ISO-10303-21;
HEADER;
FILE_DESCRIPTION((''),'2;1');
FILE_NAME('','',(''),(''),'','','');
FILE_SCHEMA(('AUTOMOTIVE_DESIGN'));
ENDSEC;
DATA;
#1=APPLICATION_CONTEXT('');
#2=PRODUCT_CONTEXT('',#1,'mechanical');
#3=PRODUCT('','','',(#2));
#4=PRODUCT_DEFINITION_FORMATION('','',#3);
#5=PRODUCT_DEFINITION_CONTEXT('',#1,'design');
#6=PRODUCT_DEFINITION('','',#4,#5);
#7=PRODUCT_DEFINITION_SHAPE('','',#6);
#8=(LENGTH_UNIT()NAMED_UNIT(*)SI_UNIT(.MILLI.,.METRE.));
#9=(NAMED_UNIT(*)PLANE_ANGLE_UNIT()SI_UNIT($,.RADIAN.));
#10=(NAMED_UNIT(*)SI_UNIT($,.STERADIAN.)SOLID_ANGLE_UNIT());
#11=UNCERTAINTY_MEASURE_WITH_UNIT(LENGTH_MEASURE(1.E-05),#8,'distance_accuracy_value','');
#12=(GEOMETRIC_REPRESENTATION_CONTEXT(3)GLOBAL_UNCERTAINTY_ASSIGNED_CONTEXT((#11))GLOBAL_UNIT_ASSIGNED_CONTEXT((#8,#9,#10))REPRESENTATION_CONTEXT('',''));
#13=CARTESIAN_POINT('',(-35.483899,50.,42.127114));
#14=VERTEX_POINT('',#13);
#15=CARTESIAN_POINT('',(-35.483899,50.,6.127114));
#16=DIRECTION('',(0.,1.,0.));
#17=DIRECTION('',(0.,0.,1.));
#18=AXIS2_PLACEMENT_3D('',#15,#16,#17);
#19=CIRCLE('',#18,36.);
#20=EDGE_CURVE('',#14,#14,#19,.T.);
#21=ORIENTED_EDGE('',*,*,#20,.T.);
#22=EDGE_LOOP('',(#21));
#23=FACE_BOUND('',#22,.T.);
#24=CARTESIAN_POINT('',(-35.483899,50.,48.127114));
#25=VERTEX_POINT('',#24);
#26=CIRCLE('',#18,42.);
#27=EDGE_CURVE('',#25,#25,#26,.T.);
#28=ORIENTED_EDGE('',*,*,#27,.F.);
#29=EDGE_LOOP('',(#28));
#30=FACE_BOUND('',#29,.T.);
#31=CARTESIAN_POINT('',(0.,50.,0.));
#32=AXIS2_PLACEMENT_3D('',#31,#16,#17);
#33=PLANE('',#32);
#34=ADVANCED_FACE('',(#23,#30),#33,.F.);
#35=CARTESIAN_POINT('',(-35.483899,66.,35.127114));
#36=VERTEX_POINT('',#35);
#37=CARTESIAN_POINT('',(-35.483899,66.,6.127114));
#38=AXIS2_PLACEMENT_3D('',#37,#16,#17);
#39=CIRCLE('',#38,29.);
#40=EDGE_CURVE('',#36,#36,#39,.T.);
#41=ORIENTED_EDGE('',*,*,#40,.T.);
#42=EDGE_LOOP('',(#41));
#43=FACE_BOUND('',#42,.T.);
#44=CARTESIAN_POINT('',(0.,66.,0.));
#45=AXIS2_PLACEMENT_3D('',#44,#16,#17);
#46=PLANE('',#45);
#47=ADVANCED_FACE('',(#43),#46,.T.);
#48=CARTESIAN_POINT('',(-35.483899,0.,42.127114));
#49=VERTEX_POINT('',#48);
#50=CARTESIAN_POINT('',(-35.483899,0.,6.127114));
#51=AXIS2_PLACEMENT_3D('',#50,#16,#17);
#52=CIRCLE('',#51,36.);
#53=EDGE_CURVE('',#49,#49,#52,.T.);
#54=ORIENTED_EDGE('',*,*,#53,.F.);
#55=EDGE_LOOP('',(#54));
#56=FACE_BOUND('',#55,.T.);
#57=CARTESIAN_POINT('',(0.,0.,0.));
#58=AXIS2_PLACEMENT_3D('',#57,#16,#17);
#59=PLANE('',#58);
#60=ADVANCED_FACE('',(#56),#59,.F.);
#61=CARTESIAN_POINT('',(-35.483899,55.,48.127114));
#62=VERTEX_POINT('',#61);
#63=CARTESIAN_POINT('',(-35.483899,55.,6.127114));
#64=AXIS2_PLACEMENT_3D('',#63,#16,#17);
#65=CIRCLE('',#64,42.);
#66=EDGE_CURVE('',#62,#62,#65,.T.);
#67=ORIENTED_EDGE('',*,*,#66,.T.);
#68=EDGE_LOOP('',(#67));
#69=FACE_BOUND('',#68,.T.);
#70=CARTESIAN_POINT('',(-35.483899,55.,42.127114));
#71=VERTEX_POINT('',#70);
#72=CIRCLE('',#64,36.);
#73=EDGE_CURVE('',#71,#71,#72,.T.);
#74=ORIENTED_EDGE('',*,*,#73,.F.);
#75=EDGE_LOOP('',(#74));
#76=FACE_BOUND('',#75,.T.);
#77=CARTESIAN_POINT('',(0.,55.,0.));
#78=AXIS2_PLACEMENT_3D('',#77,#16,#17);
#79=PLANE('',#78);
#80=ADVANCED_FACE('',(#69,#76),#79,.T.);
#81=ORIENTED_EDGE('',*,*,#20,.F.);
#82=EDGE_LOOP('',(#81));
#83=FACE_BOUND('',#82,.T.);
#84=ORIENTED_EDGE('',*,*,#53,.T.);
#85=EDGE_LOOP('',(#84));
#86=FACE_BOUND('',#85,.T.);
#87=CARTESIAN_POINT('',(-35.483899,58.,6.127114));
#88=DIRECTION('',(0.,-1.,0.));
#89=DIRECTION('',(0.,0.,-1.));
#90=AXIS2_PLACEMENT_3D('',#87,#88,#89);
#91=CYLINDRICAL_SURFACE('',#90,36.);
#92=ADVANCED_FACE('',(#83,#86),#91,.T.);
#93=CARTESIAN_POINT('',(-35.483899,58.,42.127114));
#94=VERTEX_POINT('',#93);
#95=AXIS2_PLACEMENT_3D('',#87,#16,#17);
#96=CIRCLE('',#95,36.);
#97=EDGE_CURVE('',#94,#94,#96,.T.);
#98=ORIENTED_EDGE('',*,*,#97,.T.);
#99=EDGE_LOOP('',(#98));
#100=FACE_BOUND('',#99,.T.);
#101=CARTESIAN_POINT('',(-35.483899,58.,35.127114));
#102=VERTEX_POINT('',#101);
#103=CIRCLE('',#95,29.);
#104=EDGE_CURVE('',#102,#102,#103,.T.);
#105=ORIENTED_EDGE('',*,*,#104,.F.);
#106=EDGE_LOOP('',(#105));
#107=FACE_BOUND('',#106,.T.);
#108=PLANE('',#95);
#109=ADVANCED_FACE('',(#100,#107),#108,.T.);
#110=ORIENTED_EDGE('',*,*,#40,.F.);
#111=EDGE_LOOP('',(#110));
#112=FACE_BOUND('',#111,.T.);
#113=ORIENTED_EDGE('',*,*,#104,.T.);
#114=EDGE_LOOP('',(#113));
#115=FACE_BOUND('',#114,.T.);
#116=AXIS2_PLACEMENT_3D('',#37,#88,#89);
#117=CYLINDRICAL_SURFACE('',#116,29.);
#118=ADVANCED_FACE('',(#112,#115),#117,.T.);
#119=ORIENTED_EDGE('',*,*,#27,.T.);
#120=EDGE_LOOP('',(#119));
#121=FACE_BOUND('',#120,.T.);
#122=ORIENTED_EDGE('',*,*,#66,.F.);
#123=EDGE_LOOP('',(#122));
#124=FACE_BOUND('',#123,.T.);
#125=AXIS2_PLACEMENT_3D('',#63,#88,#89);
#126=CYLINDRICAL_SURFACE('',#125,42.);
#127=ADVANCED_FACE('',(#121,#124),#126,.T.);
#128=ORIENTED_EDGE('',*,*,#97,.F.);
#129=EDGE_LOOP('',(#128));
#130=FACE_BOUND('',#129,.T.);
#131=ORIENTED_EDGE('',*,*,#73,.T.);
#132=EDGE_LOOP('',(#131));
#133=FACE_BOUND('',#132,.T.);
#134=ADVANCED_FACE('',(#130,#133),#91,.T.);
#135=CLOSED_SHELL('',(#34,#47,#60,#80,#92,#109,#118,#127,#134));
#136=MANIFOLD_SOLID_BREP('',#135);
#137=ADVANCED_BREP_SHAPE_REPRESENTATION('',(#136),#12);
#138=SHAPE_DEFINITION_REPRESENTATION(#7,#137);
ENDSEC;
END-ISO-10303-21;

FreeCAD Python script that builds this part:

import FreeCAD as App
import Part
import Sketcher
Q = App.Units.Quantity

doc = App.newDocument("Part")
body = doc.addObject("PartDesign::Body", "Body")

sketch1 = body.newObject("Sketcher::SketchObject", "Sketch")
sketch1.AttachmentSupport = (doc.getObject("XZ_Plane"), [""])
sketch1.MapMode = "FlatFace"
sketch1.addGeometry(Part.Circle(App.Vector(-35, 6, 0), App.Vector(0, 0, 1), 29), False)
sketch1.addConstraint([
    Sketcher.Constraint("Diameter", 0, Q("58 mm")),
    Sketcher.Constraint("DistanceX", 0, 3, -1, 1, Q("35.483899 mm")),
    Sketcher.Constraint("DistanceY", -1, 1, 0, 3, Q("6.127114 mm")),
])
pad1 = body.newObject("PartDesign::Pad", "Pad")
pad1.Profile = sketch1
pad1.Length = 66
pad1.Reversed = True

sketch2 = body.newObject("Sketcher::SketchObject", "Sketch001")
sketch2.AttachmentSupport = (doc.getObject("XZ_Plane"), [""])
sketch2.MapMode = "FlatFace"
sketch2.addGeometry(Part.Circle(App.Vector(-35, 6, 0), App.Vector(0, 0, 1), 36), False)
sketch2.addConstraint([
    Sketcher.Constraint("Diameter", 0, Q("72 mm")),
    Sketcher.Constraint("DistanceX", 0, 3, -1, 1, Q("35.483899 mm")),
    Sketcher.Constraint("DistanceY", -1, 1, 0, 3, Q("6.127114 mm")),
])
pad2 = body.newObject("PartDesign::Pad", "Pad001")
pad2.Profile = sketch2
pad2.Length = 58
pad2.Reversed = True

sketch3 = body.newObject("Sketcher::SketchObject", "Sketch002")
sketch3.AttachmentSupport = (doc.getObject("XZ_Plane"), [""])
sketch3.MapMode = "FlatFace"
sketch3.AttachmentOffset = App.Placement(App.Vector(0, 0, -50), App.Rotation())
sketch3.addGeometry([
    Part.Circle(App.Vector(-35, 6, 0), App.Vector(0, 0, 1), 42),
    Part.Circle(App.Vector(-35, 6, 0), App.Vector(0, 0, 1), 36),
], False)
sketch3.addConstraint([
    Sketcher.Constraint("Coincident", 1, 3, 0, 3),
    Sketcher.Constraint("Diameter", 0, Q("84 mm")),
    Sketcher.Constraint("Diameter", 1, Q("72 mm")),
    Sketcher.Constraint("DistanceX", 0, 3, -1, 1, Q("35.483899 mm")),
    Sketcher.Constraint("DistanceY", -1, 1, 0, 3, Q("6.127114 mm")),
])
pad3 = body.newObject("PartDesign::Pad", "Pad002")
pad3.Profile = sketch3
pad3.Length = 5
pad3.Reversed = True

doc.recompute()
